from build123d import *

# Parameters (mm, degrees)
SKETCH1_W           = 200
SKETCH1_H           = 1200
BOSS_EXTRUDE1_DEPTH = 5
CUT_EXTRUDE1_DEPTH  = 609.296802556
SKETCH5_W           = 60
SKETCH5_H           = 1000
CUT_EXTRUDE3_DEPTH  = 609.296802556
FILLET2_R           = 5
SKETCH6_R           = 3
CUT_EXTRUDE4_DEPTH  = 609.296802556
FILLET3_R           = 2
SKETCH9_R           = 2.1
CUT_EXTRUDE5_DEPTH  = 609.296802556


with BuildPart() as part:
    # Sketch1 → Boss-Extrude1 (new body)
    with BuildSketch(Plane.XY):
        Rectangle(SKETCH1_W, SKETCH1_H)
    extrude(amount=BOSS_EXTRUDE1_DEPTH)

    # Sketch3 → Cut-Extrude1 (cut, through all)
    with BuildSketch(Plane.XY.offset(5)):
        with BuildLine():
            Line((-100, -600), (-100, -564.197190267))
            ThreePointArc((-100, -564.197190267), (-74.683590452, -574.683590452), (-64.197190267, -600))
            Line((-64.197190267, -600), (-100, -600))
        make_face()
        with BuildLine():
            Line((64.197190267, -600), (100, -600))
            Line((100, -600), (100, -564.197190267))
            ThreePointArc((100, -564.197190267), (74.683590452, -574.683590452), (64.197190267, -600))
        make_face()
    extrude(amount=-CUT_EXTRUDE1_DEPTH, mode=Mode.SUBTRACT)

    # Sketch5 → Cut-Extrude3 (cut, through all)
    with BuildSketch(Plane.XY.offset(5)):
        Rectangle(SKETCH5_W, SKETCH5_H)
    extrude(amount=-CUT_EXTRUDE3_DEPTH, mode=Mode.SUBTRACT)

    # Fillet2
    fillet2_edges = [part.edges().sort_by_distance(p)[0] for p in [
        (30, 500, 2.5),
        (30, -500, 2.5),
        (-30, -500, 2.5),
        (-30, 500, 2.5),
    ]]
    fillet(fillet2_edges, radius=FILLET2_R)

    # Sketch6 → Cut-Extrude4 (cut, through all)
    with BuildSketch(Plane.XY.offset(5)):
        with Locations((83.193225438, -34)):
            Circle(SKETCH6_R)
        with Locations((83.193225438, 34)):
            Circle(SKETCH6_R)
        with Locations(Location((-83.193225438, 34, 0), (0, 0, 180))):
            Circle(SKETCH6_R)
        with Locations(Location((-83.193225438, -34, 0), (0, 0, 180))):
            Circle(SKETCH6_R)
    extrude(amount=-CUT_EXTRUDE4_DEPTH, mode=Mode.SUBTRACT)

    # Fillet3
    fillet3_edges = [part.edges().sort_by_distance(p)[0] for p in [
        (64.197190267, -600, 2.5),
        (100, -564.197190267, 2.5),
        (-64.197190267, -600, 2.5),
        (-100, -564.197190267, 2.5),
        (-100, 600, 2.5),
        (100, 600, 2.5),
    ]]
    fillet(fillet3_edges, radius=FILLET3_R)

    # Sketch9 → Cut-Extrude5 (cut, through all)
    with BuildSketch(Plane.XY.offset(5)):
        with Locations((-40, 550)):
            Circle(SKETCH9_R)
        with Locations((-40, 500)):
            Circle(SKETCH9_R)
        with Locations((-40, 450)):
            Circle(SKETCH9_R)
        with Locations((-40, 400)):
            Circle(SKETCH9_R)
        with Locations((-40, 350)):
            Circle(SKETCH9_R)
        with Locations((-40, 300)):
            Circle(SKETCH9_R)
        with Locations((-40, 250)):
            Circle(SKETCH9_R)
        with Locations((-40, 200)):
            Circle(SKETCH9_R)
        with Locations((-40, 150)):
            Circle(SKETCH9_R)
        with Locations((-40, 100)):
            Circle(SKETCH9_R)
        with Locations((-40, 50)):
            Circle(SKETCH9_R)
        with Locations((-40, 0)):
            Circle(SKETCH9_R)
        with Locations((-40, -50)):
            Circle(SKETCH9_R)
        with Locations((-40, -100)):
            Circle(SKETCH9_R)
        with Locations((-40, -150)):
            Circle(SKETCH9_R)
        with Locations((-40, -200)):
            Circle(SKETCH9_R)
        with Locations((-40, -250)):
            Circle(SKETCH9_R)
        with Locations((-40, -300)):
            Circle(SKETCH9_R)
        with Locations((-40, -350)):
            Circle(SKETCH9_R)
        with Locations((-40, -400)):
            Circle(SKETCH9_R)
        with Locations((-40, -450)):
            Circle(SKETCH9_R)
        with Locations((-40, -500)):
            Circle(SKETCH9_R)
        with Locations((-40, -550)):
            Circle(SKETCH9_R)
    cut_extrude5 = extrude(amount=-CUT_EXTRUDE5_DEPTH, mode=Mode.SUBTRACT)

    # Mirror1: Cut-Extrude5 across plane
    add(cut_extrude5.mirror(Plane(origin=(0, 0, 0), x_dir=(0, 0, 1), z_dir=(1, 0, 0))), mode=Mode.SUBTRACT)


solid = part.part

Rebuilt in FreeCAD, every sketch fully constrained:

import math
import FreeCAD as App
import Part
import Sketcher

V = App.Vector
Q = App.Units.Quantity


def edges_at(feature, points):
    """Names of the edges that pass closest to the given points."""
    edges = feature.Shape.Edges
    near = lambda p: min(range(len(edges)), key=lambda i: edges[i].distToShape(Part.Vertex(*p))[0])
    return sorted({f"Edge{near(p) + 1}" for p in points})

doc = App.newDocument("Part")
params = doc.addObject("Spreadsheet::Sheet", "Params")
for row, (alias, value) in enumerate([
    ("sketch1_width", "200 mm"),
    ("sketch1_height", "1200 mm"),
    ("pad1_length", "5 mm"),
    ("sketch3_width", "60 mm"),
    ("sketch3_height", "1000 mm"),
    ("fillet_radius", "5 mm"),
    ("sketch4_diameter", "6 mm"),
    ("fillet2_radius", "2 mm"),
    ("sketch5_diameter", "4.2 mm"),
], start=1):
    params.set(f"A{row}", alias)
    params.set(f"B{row}", "=" + value)
    params.setAlias(f"B{row}", alias)

body = doc.addObject("PartDesign::Body", "Body")

sketch1 = body.newObject("Sketcher::SketchObject", "Sketch")
sketch1.AttachmentSupport = (doc.getObject("XY_Plane"), [""])
sketch1.MapMode = "FlatFace"
sketch1.addGeometry([
    Part.LineSegment(V(-100, 600, 0), V(-100, -600, 0)),
    Part.LineSegment(V(-100, -600, 0), V(100, -600, 0)),
    Part.LineSegment(V(100, -600, 0), V(100, 600, 0)),
    Part.LineSegment(V(100, 600, 0), V(-100, 600, 0)),
], False)
sketch1.addConstraint([
    Sketcher.Constraint("Coincident", 0, 2, 1, 1),
    Sketcher.Constraint("Coincident", 1, 2, 2, 1),
    Sketcher.Constraint("Coincident", 2, 2, 3, 1),
    Sketcher.Constraint("Coincident", 3, 2, 0, 1),
    Sketcher.Constraint("Vertical", 0),
    Sketcher.Constraint("Horizontal", 1),
    Sketcher.Constraint("Vertical", 2),
    Sketcher.Constraint("Horizontal", 3),
    Sketcher.Constraint("Symmetric", 0, 2, 2, 2, -1, 1),
    Sketcher.Constraint("DistanceX", 1, 1, 1, 2, Q("200 mm")),
    Sketcher.Constraint("DistanceY", 0, 2, 0, 1, Q("1200 mm")),
])
sketch1.setExpression("Constraints[9]", "Params.sketch1_width")
sketch1.setExpression("Constraints[10]", "Params.sketch1_height")
pad1 = body.newObject("PartDesign::Pad", "Pad")
pad1.Profile = sketch1
pad1.setExpression("Length", "Params.pad1_length")

sketch2 = body.newObject("Sketcher::SketchObject", "Sketch001")
sketch2.AttachmentSupport = (doc.getObject("XY_Plane"), [""])
sketch2.MapMode = "FlatFace"
sketch2.AttachmentOffset = App.Placement(V(0, 0, 5), App.Rotation())
sketch2.addGeometry([
    Part.LineSegment(V(-100, -564, 0), V(-100, -600, 0)),
    Part.LineSegment(V(-100, -600, 0), V(-64, -600, 0)),
    Part.ArcOfCircle(Part.Circle(V(-100, -600, 0), V(0, 0, 1), 36), math.radians(0), math.radians(90)),
    Part.LineSegment(V(64, -600, 0), V(100, -600, 0)),
    Part.LineSegment(V(100, -600, 0), V(100, -564, 0)),
    Part.ArcOfCircle(Part.Circle(V(100, -600, 0), V(0, 0, 1), 36), math.radians(90), math.radians(180)),
], False)
sketch2.addConstraint([
    Sketcher.Constraint("Coincident", 0, 2, 1, 1),
    Sketcher.Constraint("Coincident", 1, 2, 2, 1),
    Sketcher.Constraint("Coincident", 2, 2, 0, 1),
    Sketcher.Constraint("Coincident", 3, 2, 4, 1),
    Sketcher.Constraint("Coincident", 4, 2, 5, 1),
    Sketcher.Constraint("Coincident", 5, 2, 3, 1),
    Sketcher.Constraint("Vertical", 0),
    Sketcher.Constraint("Horizontal", 1),
    Sketcher.Constraint("Horizontal", 3),
    Sketcher.Constraint("Vertical", 4),
    Sketcher.Constraint("Coincident", 0, 2, 2, 3),
    Sketcher.Constraint("Coincident", 3, 2, 5, 3),
    Sketcher.Constraint("Equal", 2, 5),
    Sketcher.Constraint("Symmetric", 2, 3, 5, 3, -2),
    Sketcher.Constraint("DistanceX", 2, 3, -1, 1, Q("100 mm")),
    Sketcher.Constraint("DistanceY", 2, 3, -1, 1, Q("600 mm")),
    Sketcher.Constraint("Radius", 2, Q("35.80281 mm")),
])
pocket1 = body.newObject("PartDesign::Pocket", "Pocket")
pocket1.Profile = sketch2
pocket1.Type = "ThroughAll"

sketch3 = body.newObject("Sketcher::SketchObject", "Sketch002")
sketch3.AttachmentSupport = (doc.getObject("XY_Plane"), [""])
sketch3.MapMode = "FlatFace"
sketch3.AttachmentOffset = App.Placement(V(0, 0, 5), App.Rotation())
sketch3.addGeometry([
    Part.LineSegment(V(-30, 500, 0), V(-30, -500, 0)),
    Part.LineSegment(V(-30, -500, 0), V(30, -500, 0)),
    Part.LineSegment(V(30, -500, 0), V(30, 500, 0)),
    Part.LineSegment(V(30, 500, 0), V(-30, 500, 0)),
], False)
sketch3.addConstraint([
    Sketcher.Constraint("Coincident", 0, 2, 1, 1),
    Sketcher.Constraint("Coincident", 1, 2, 2, 1),
    Sketcher.Constraint("Coincident", 2, 2, 3, 1),
    Sketcher.Constraint("Coincident", 3, 2, 0, 1),
    Sketcher.Constraint("Vertical", 0),
    Sketcher.Constraint("Horizontal", 1),
    Sketcher.Constraint("Vertical", 2),
    Sketcher.Constraint("Horizontal", 3),
    Sketcher.Constraint("Symmetric", 0, 2, 2, 2, -1, 1),
    Sketcher.Constraint("DistanceX", 1, 1, 1, 2, Q("60 mm")),
    Sketcher.Constraint("DistanceY", 0, 2, 0, 1, Q("1000 mm")),
])
sketch3.setExpression("Constraints[9]", "Params.sketch3_width")
sketch3.setExpression("Constraints[10]", "Params.sketch3_height")
pocket2 = body.newObject("PartDesign::Pocket", "Pocket001")
pocket2.Profile = sketch3
pocket2.Type = "ThroughAll"
doc.recompute()

fillet = body.newObject("PartDesign::Fillet", "Fillet")
fillet.Base = (pocket2, edges_at(pocket2, [
    (30, 500, 2.5),
    (30, -500, 2.5),
    (-30, -500, 2.5),
    (-30, 500, 2.5),
]))
fillet.setExpression("Radius", "Params.fillet_radius")

sketch4 = body.newObject("Sketcher::SketchObject", "Sketch003")
sketch4.AttachmentSupport = (doc.getObject("XY_Plane"), [""])
sketch4.MapMode = "FlatFace"
sketch4.AttachmentOffset = App.Placement(V(0, 0, 5), App.Rotation())
sketch4.addGeometry([
    Part.Circle(V(83.2, -34, 0), V(0, 0, 1), 3),
    Part.Circle(V(83.2, 34, 0), V(0, 0, 1), 3),
    Part.Circle(V(-83.2, 34, 0), V(0, 0, 1), 3),
    Part.Circle(V(-83.2, -34, 0), V(0, 0, 1), 3),
], False)
sketch4.addConstraint([
    Sketcher.Constraint("Equal", 0, 1),
    Sketcher.Constraint("Equal", 1, 2),
    Sketcher.Constraint("Equal", 2, 3),
    Sketcher.Constraint("Symmetric", 0, 3, 2, 3, -1, 1),
    Sketcher.Constraint("Symmetric", 1, 3, 3, 3, -1, 1),
    Sketcher.Constraint("Symmetric", 1, 3, 2, 3, -2),
    Sketcher.Constraint("Diameter", 0, Q("6 mm")),
    Sketcher.Constraint("DistanceY", 0, 3, -1, 1, Q("34 mm")),
    Sketcher.Constraint("DistanceX", 2, 3, 1, 3, Q("166.386451 mm")),
])
sketch4.setExpression("Constraints[6]", "Params.sketch4_diameter")
pocket3 = body.newObject("PartDesign::Pocket", "Pocket002")
pocket3.Profile = sketch4
pocket3.Type = "ThroughAll"
doc.recompute()

fillet2 = body.newObject("PartDesign::Fillet", "Fillet001")
fillet2.Base = (pocket3, edges_at(pocket3, [
    (64.197, -600, 2.5),
    (100, -564.197, 2.5),
    (-64.197, -600, 2.5),
    (-100, -564.197, 2.5),
    (-100, 600, 2.5),
    (100, 600, 2.5),
]))
fillet2.setExpression("Radius", "Params.fillet2_radius")

sketch5 = body.newObject("Sketcher::SketchObject", "Sketch004")
sketch5.AttachmentSupport = (doc.getObject("XY_Plane"), [""])
sketch5.MapMode = "FlatFace"
sketch5.AttachmentOffset = App.Placement(V(0, 0, 5), App.Rotation())
sketch5.addGeometry([
    Part.Circle(V(-40, 550, 0), V(0, 0, 1), 2.1),
    Part.Circle(V(-40, 500, 0), V(0, 0, 1), 2.1),
    Part.Circle(V(-40, 450, 0), V(0, 0, 1), 2.1),
    Part.Circle(V(-40, 400, 0), V(0, 0, 1), 2.1),
    Part.Circle(V(-40, 350, 0), V(0, 0, 1), 2.1),
    Part.Circle(V(-40, 300, 0), V(0, 0, 1), 2.1),
    Part.Circle(V(-40, 250, 0), V(0, 0, 1), 2.1),
    Part.Circle(V(-40, 200, 0), V(0, 0, 1), 2.1),
    Part.Circle(V(-40, 150, 0), V(0, 0, 1), 2.1),
    Part.Circle(V(-40, 100, 0), V(0, 0, 1), 2.1),
    Part.Circle(V(-40, 50, 0), V(0, 0, 1), 2.1),
    Part.Circle(V(-40, 0, 0), V(0, 0, 1), 2.1),
    Part.Circle(V(-40, -50, 0), V(0, 0, 1), 2.1),
    Part.Circle(V(-40, -100, 0), V(0, 0, 1), 2.1),
    Part.Circle(V(-40, -150, 0), V(0, 0, 1), 2.1),
    Part.Circle(V(-40, -200, 0), V(0, 0, 1), 2.1),
    Part.Circle(V(-40, -250, 0), V(0, 0, 1), 2.1),
    Part.Circle(V(-40, -300, 0), V(0, 0, 1), 2.1),
    Part.Circle(V(-40, -350, 0), V(0, 0, 1), 2.1),
    Part.Circle(V(-40, -400, 0), V(0, 0, 1), 2.1),
    Part.Circle(V(-40, -450, 0), V(0, 0, 1), 2.1),
    Part.Circle(V(-40, -500, 0), V(0, 0, 1), 2.1),
    Part.Circle(V(-40, -550, 0), V(0, 0, 1), 2.1),
], False)
sketch5.addConstraint([
    Sketcher.Constraint("Equal", 0, 1),
    Sketcher.Constraint("Equal", 1, 2),
    Sketcher.Constraint("Equal", 2, 3),
    Sketcher.Constraint("Equal", 3, 4),
    Sketcher.Constraint("Equal", 4, 5),
    Sketcher.Constraint("Equal", 5, 6),
    Sketcher.Constraint("Equal", 6, 7),
    Sketcher.Constraint("Equal", 7, 8),
    Sketcher.Constraint("Equal", 8, 9),
    Sketcher.Constraint("Equal", 9, 10),
    Sketcher.Constraint("Equal", 10, 11),
    Sketcher.Constraint("Equal", 11, 12),
    Sketcher.Constraint("Equal", 12, 13),
    Sketcher.Constraint("Equal", 13, 14),
    Sketcher.Constraint("Equal", 14, 15),
    Sketcher.Constraint("Equal", 15, 16),
    Sketcher.Constraint("Equal", 16, 17),
    Sketcher.Constraint("Equal", 17, 18),
    Sketcher.Constraint("Equal", 18, 19),
    Sketcher.Constraint("Equal", 19, 20),
    Sketcher.Constraint("Equal", 20, 21),
    Sketcher.Constraint("Equal", 21, 22),
    Sketcher.Constraint("Symmetric", 10, 3, 12, 3, -1),
    Sketcher.Constraint("Symmetric", 9, 3, 13, 3, -1),
    Sketcher.Constraint("Symmetric", 8, 3, 14, 3, -1),
    Sketcher.Constraint("Symmetric", 7, 3, 15, 3, -1),
    Sketcher.Constraint("Symmetric", 6, 3, 16, 3, -1),
    Sketcher.Constraint("Symmetric", 5, 3, 17, 3, -1),
    Sketcher.Constraint("Symmetric", 4, 3, 18, 3, -1),
    Sketcher.Constraint("Symmetric", 3, 3, 19, 3, -1),
    Sketcher.Constraint("Symmetric", 2, 3, 20, 3, -1),
    Sketcher.Constraint("Symmetric", 1, 3, 21, 3, -1),
    Sketcher.Constraint("Symmetric", 0, 3, 22, 3, -1),
    Sketcher.Constraint("PointOnObject", 11, 3, -1),
    Sketcher.Constraint("Vertical", 0, 3, 1, 3),
    Sketcher.Constraint("Vertical", 1, 3, 2, 3),
    Sketcher.Constraint("Vertical", 2, 3, 3, 3),
    Sketcher.Constraint("Vertical", 3, 3, 4, 3),
    Sketcher.Constraint("Vertical", 4, 3, 5, 3),
    Sketcher.Constraint("Vertical", 5, 3, 6, 3),
    Sketcher.Constraint("Vertical", 6, 3, 7, 3),
    Sketcher.Constraint("Vertical", 7, 3, 8, 3),
    Sketcher.Constraint("Vertical", 8, 3, 9, 3),
    Sketcher.Constraint("Vertical", 9, 3, 10, 3),
    Sketcher.Constraint("Vertical", 10, 3, 11, 3),
    Sketcher.Constraint("Diameter", 0, Q("4.2 mm")),
    Sketcher.Constraint("DistanceX", 0, 3, -1, 1, Q("40 mm")),
    Sketcher.Constraint("DistanceY", -1, 1, 0, 3, Q("550 mm")),
    Sketcher.Constraint("DistanceY", -1, 1, 1, 3, Q("500 mm")),
    Sketcher.Constraint("DistanceY", -1, 1, 2, 3, Q("450 mm")),
    Sketcher.Constraint("DistanceY", -1, 1, 3, 3, Q("400 mm")),
    Sketcher.Constraint("DistanceY", -1, 1, 4, 3, Q("350 mm")),
    Sketcher.Constraint("DistanceY", -1, 1, 5, 3, Q("300 mm")),
    Sketcher.Constraint("DistanceY", -1, 1, 6, 3, Q("250 mm")),
    Sketcher.Constraint("DistanceY", -1, 1, 7, 3, Q("200 mm")),
    Sketcher.Constraint("DistanceY", -1, 1, 8, 3, Q("150 mm")),
    Sketcher.Constraint("DistanceY", -1, 1, 9, 3, Q("100 mm")),
    Sketcher.Constraint("DistanceY", -1, 1, 10, 3, Q("50 mm")),
])
sketch5.setExpression("Constraints[45]", "Params.sketch5_diameter")
pocket4 = body.newObject("PartDesign::Pocket", "Pocket003")
pocket4.Profile = sketch5
pocket4.Type = "ThroughAll"
doc.recompute()

mirrored = body.newObject("PartDesign::Mirrored", "Mirrored")
mirrored.Originals = [pocket4]
mirrored.MirrorPlane = (doc.getObject("YZ_Plane"), [""])
body.Tip = mirrored

doc.recompute()
